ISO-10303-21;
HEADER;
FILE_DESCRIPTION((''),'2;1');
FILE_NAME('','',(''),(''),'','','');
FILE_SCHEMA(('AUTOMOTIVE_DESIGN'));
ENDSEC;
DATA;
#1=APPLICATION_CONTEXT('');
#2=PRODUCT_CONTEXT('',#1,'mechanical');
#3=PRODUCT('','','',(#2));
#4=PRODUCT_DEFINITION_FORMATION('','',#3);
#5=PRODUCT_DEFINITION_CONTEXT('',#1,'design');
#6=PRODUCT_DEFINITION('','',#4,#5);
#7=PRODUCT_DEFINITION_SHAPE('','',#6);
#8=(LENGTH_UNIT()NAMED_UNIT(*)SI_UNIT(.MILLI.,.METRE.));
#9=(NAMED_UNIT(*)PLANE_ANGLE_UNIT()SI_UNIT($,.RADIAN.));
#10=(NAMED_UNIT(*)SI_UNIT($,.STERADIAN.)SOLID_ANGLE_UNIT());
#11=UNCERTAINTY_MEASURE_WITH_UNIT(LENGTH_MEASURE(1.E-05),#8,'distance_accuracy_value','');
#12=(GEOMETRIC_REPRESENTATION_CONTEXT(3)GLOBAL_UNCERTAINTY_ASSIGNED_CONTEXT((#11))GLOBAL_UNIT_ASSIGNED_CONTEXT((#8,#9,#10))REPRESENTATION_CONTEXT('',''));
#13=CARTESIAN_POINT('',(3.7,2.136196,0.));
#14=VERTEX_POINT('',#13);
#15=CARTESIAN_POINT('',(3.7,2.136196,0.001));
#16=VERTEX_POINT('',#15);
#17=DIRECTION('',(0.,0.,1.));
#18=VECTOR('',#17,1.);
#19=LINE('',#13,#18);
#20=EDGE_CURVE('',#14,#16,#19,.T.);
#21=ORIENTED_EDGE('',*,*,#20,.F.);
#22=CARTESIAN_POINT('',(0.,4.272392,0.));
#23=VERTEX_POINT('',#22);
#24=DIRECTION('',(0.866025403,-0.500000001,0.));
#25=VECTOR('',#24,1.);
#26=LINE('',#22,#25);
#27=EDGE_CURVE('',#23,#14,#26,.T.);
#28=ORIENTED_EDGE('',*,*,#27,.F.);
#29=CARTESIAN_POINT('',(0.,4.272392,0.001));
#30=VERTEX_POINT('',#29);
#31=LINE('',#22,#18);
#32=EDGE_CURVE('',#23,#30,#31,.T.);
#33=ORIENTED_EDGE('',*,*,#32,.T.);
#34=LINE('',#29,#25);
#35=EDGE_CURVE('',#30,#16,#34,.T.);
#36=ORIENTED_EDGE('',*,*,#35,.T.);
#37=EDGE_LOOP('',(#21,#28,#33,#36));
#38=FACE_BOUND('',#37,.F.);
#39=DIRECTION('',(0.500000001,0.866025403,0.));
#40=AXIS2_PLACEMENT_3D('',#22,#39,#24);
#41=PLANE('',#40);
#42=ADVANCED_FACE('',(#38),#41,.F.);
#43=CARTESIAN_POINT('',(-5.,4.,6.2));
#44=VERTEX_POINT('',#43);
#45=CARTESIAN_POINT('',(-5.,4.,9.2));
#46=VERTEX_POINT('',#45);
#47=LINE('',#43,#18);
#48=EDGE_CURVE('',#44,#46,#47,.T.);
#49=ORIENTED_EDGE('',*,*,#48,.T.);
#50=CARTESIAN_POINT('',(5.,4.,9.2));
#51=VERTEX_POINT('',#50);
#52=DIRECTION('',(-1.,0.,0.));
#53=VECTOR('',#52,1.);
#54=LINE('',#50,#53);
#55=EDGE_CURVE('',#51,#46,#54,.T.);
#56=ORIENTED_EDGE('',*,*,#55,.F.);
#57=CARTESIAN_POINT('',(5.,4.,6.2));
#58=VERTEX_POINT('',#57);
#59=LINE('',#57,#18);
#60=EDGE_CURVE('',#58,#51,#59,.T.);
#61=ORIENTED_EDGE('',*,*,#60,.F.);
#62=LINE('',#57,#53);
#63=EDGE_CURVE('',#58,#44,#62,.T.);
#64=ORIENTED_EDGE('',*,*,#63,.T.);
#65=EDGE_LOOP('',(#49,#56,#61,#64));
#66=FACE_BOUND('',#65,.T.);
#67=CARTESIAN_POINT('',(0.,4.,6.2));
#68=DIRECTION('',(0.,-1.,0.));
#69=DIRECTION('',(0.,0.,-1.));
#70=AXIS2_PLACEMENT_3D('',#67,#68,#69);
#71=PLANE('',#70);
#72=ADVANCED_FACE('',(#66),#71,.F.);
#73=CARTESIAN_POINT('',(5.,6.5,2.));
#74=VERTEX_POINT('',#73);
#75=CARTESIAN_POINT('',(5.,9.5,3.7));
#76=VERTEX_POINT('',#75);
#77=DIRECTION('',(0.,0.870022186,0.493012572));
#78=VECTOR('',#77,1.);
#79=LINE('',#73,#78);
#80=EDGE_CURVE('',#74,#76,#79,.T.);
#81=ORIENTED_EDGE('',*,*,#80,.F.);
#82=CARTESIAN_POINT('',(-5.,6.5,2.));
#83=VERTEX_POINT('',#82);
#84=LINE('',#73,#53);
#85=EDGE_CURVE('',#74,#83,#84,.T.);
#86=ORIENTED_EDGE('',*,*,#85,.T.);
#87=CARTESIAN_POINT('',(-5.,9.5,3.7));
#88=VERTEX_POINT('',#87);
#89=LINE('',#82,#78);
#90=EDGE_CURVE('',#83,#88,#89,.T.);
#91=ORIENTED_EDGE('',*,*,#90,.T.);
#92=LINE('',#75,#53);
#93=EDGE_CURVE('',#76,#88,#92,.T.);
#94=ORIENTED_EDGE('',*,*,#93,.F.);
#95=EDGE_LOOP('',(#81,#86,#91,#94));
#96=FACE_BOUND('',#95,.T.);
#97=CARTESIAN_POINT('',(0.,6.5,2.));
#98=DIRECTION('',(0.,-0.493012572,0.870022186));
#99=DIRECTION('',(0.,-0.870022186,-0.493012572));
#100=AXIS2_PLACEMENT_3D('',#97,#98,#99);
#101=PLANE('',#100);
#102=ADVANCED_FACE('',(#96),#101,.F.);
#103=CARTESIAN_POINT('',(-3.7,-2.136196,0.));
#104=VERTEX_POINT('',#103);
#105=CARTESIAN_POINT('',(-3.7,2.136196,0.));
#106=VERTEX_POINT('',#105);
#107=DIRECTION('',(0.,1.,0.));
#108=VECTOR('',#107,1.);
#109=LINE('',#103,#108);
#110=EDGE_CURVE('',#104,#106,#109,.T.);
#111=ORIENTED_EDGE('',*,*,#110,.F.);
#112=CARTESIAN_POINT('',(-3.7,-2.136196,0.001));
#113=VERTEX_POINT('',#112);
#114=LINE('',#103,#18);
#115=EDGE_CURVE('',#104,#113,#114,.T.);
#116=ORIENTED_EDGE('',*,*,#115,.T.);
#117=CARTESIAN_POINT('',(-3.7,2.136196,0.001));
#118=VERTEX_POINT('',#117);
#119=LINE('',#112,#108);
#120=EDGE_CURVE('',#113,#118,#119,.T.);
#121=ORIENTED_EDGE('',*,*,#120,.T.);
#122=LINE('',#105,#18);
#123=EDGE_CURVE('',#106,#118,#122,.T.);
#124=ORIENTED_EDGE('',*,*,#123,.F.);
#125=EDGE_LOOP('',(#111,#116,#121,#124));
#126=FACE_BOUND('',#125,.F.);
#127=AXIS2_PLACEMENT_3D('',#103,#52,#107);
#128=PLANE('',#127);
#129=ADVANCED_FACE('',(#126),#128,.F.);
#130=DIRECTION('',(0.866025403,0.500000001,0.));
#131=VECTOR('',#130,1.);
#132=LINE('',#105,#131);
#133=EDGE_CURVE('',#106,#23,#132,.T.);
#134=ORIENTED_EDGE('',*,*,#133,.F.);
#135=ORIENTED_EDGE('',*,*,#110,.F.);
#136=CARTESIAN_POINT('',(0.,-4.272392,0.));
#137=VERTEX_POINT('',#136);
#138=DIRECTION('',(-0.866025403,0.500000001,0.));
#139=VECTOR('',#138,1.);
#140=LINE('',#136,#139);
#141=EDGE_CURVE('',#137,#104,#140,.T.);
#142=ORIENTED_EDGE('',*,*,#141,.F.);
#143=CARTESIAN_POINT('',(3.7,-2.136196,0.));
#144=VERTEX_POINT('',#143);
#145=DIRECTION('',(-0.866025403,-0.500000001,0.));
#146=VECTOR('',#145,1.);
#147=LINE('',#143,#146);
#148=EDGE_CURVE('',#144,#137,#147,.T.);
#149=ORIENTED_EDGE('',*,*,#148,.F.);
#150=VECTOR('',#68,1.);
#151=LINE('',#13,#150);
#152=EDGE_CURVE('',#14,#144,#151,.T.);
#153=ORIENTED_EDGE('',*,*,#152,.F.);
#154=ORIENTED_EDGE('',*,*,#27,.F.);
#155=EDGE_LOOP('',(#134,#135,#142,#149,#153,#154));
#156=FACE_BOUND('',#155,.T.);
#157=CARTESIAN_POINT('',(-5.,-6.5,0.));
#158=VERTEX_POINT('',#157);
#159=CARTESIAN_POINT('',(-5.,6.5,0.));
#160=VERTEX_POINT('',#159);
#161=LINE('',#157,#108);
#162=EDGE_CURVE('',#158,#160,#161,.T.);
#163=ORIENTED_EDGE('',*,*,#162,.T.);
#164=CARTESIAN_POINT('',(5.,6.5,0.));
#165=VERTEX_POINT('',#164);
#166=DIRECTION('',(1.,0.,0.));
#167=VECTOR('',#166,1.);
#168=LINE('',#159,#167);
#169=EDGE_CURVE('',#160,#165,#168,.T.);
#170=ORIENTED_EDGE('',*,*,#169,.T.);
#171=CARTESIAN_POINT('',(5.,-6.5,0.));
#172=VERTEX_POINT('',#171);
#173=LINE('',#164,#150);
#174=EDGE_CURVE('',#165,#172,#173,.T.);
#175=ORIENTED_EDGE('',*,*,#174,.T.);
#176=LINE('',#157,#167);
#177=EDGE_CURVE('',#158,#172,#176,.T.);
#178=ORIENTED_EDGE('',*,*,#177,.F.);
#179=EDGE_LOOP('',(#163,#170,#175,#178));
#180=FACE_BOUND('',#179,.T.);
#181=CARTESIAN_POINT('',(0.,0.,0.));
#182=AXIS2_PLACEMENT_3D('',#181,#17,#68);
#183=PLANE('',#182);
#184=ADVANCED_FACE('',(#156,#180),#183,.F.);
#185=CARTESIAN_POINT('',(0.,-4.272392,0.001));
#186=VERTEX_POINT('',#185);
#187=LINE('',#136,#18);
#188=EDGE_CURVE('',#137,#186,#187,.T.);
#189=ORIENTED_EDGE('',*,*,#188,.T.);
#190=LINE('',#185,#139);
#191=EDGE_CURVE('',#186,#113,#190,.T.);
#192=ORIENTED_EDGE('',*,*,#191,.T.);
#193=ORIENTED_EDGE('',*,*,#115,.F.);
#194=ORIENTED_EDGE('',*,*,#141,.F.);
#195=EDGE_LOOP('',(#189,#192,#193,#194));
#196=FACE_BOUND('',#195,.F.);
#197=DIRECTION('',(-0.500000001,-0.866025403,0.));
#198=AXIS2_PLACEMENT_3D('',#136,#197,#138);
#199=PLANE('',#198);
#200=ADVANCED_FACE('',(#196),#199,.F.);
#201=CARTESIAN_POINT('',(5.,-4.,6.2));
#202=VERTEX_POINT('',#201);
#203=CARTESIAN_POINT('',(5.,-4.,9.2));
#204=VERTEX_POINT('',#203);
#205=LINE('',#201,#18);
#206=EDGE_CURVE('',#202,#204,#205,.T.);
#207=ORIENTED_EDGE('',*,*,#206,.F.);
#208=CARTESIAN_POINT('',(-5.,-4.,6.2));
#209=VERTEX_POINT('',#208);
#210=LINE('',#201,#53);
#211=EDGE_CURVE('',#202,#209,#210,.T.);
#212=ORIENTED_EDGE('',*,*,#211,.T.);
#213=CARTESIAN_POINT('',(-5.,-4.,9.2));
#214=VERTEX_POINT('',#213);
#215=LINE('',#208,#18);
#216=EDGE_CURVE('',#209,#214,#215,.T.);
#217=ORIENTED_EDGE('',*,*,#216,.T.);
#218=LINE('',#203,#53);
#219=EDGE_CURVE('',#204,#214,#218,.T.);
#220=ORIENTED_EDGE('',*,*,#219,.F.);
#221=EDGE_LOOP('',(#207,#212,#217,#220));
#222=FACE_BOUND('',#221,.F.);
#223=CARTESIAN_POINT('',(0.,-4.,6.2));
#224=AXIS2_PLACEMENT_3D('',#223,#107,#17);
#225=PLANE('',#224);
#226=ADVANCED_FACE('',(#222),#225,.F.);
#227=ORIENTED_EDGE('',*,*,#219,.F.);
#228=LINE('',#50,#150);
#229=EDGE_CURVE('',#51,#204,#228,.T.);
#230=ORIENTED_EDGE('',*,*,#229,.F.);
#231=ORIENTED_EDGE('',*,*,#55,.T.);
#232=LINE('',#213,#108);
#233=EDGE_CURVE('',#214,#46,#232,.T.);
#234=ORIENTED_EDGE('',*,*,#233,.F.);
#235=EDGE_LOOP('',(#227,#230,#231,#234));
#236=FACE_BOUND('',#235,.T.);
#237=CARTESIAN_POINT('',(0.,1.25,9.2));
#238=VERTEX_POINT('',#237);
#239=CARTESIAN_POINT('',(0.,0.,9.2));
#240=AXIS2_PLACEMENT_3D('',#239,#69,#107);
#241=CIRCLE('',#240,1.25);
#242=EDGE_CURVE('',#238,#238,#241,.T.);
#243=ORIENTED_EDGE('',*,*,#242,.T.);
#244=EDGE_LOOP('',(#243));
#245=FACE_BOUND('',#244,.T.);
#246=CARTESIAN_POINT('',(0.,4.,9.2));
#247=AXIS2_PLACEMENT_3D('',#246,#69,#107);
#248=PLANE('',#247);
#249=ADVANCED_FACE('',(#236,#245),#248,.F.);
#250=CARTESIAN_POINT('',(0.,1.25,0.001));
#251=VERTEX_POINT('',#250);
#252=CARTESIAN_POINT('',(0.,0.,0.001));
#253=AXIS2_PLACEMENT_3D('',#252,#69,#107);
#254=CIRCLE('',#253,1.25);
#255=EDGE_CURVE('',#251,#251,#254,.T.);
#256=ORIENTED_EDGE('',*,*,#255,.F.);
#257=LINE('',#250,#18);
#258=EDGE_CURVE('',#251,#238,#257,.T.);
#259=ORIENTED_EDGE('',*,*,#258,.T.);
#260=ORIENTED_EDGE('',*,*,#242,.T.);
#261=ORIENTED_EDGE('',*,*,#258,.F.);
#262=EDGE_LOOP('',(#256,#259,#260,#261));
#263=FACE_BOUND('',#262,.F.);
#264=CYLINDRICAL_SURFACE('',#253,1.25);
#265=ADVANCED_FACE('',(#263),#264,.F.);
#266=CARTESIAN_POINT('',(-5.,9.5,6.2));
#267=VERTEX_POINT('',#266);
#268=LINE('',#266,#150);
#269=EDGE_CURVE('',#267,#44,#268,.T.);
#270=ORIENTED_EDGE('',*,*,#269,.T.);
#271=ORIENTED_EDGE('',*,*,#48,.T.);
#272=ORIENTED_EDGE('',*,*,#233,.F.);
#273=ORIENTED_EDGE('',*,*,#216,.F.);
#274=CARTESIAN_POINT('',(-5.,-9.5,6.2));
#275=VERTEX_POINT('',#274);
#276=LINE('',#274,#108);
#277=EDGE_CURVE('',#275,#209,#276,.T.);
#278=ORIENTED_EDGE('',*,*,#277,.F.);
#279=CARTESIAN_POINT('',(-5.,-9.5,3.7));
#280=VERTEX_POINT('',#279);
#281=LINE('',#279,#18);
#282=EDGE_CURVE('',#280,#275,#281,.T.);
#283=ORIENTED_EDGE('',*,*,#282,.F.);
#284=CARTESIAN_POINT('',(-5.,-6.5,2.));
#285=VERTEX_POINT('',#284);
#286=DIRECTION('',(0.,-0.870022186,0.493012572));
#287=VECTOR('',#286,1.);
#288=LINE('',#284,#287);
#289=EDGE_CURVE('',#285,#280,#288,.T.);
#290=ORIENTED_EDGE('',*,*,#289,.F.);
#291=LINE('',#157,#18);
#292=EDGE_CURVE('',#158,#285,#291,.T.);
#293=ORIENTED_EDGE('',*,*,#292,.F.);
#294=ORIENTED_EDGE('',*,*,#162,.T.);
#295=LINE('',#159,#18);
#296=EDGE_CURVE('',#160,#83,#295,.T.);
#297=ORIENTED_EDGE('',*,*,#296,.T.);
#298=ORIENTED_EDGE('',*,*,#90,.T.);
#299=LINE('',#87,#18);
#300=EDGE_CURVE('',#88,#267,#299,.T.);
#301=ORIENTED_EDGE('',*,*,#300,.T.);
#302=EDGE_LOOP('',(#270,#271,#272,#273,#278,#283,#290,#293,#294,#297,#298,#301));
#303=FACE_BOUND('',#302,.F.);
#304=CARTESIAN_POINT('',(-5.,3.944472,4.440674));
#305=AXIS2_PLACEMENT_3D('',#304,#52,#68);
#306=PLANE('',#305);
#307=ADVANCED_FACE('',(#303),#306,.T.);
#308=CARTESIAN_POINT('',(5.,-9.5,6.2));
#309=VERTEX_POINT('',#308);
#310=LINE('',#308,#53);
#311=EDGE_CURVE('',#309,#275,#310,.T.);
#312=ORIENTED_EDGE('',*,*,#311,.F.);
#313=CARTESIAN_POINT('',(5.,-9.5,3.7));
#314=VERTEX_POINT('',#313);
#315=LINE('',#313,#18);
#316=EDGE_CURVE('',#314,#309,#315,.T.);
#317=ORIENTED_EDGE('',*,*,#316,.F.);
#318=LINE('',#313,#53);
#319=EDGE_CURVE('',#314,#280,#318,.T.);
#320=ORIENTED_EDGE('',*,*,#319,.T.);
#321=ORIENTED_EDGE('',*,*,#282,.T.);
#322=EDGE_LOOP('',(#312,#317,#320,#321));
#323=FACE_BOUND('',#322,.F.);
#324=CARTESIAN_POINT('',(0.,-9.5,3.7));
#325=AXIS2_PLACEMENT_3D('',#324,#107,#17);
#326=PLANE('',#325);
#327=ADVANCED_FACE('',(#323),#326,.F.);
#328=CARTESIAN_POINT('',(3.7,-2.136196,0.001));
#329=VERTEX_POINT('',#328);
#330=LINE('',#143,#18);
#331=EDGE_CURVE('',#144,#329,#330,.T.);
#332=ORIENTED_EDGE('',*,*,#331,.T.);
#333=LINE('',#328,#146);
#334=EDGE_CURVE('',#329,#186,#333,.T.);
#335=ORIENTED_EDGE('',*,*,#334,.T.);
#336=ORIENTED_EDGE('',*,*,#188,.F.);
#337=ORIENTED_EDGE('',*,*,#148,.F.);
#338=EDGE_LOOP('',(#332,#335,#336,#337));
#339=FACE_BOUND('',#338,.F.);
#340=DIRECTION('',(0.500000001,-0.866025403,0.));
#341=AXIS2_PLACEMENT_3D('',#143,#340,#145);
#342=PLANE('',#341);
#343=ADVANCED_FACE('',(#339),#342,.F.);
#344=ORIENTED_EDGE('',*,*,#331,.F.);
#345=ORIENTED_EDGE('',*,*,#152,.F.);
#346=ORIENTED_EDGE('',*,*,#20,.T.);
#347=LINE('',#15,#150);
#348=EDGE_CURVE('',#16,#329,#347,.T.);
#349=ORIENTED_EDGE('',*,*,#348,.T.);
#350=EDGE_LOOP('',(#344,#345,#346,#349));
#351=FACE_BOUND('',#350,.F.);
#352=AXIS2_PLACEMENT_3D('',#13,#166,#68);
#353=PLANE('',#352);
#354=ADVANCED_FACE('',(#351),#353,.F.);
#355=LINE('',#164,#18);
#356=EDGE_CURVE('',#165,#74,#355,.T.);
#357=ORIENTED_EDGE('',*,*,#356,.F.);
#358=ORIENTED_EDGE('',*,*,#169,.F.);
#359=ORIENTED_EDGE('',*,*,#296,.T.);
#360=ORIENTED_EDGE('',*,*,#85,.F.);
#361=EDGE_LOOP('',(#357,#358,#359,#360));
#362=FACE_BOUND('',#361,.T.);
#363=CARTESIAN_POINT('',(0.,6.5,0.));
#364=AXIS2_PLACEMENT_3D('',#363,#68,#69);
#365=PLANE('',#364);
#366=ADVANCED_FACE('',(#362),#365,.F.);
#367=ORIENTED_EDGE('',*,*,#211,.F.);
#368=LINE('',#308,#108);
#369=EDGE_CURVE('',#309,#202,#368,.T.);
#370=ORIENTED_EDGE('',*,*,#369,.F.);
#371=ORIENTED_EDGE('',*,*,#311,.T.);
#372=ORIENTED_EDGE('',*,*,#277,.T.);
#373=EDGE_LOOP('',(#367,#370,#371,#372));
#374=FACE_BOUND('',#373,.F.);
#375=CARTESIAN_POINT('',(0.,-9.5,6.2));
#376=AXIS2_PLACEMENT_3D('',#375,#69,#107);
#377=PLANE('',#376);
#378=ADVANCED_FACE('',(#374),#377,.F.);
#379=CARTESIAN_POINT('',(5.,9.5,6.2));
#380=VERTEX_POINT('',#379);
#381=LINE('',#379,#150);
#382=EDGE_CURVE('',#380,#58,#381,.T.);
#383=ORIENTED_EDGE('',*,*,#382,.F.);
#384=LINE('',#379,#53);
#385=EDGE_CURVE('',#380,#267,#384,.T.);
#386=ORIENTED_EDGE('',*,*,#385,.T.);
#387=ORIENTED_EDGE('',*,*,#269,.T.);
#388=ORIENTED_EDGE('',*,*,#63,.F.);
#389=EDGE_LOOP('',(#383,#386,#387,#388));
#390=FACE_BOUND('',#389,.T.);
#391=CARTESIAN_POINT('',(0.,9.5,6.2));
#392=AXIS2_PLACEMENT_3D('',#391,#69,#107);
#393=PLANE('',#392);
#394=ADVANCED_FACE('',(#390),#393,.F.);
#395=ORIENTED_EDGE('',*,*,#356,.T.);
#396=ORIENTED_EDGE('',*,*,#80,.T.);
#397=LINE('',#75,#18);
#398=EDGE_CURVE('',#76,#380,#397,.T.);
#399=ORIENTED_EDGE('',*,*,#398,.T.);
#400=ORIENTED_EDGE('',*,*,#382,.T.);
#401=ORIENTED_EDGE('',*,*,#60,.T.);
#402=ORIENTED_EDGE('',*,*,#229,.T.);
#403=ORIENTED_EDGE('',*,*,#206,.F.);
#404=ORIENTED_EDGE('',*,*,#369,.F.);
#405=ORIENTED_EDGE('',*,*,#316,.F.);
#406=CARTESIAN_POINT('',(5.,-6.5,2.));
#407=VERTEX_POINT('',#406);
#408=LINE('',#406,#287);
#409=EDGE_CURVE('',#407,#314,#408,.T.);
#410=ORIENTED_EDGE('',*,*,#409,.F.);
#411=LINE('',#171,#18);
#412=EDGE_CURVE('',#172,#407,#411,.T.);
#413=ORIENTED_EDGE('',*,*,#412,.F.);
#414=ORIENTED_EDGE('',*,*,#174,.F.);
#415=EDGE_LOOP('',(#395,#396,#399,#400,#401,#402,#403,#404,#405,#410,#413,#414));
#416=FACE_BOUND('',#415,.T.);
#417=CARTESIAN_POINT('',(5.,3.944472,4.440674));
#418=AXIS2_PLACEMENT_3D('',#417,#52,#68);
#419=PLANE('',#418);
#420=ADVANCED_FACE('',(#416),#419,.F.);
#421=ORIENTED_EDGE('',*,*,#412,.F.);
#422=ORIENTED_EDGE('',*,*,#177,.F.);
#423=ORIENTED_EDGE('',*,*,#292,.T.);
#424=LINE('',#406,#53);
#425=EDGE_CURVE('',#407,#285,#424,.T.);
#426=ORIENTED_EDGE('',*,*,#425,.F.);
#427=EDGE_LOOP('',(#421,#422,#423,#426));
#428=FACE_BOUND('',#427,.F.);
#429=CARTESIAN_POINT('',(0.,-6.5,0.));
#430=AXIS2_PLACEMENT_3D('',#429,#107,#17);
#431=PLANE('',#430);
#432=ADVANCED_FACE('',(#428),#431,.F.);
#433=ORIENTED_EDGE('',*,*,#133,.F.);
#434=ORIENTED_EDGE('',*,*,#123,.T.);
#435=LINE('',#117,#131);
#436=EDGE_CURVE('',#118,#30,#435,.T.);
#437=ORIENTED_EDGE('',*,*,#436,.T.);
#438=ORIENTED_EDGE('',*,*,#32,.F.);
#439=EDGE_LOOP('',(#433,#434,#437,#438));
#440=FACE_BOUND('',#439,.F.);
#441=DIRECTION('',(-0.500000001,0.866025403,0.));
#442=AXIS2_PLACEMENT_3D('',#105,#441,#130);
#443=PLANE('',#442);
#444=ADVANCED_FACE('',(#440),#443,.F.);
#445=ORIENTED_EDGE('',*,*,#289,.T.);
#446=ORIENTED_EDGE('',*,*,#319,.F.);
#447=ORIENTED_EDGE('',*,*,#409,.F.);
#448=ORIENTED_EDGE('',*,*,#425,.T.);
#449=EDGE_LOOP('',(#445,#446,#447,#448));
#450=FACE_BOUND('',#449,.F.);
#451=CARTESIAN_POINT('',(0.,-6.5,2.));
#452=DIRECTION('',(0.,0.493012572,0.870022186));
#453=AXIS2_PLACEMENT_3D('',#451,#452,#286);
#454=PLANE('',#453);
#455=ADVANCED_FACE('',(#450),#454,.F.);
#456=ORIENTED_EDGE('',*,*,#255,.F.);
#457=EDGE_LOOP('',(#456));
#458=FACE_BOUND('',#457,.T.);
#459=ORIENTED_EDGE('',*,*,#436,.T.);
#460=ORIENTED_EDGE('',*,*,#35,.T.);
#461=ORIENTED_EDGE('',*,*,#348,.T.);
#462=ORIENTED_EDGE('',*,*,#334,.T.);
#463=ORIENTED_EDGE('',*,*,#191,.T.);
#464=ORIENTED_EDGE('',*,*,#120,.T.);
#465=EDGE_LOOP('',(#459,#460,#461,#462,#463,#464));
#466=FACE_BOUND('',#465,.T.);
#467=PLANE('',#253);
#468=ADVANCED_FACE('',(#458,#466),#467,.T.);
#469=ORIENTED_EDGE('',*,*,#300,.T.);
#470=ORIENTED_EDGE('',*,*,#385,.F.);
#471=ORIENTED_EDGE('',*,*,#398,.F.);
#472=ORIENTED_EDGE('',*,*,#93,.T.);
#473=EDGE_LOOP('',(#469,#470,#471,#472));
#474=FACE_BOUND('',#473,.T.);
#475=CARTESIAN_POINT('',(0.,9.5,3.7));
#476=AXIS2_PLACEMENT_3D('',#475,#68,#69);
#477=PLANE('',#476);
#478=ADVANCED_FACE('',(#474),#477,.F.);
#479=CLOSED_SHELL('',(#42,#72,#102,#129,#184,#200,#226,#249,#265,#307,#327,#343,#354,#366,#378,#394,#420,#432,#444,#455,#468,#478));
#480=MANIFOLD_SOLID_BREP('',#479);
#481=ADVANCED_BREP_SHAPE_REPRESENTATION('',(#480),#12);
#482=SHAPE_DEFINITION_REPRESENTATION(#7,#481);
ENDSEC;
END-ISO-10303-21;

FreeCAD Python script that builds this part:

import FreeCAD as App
import Part
import Sketcher

V = App.Vector
Q = App.Units.Quantity

doc = App.newDocument("Part")
body = doc.addObject("PartDesign::Body", "Body")

# Sketch on YZ plane
sketch1 = body.newObject("Sketcher::SketchObject", "Sketch")
sketch1.AttachmentSupport = (doc.getObject("YZ_Plane"), [""])
sketch1.MapMode = "FlatFace"
sketch1.addGeometry([
    Part.LineSegment(V(-6.5, 2, 0), V(-6.5, 0, 0)),  # 0
    Part.LineSegment(V(-6.5, 0, 0), V(0, 0, 0)),  # 1
    Part.LineSegment(V(0, 0, 0), V(0, 9.2, 0)),  # 2
    Part.LineSegment(V(0, 9.2, 0), V(-4, 9.2, 0)),  # 3
    Part.LineSegment(V(-4, 9.2, 0), V(-4, 6.2, 0)),  # 4
    Part.LineSegment(V(-4, 6.2, 0), V(-9.5, 6.2, 0)),  # 5
    Part.LineSegment(V(-9.5, 6.2, 0), V(-9.5, 3.7, 0)),  # 6
    Part.LineSegment(V(-9.5, 3.7, 0), V(-6.5, 2, 0)),  # 7
], False)
sketch1.addConstraint([
    Sketcher.Constraint("Coincident", 0, 2, 1, 1),
    Sketcher.Constraint("Coincident", 1, 2, 2, 1),
    Sketcher.Constraint("Coincident", 2, 2, 3, 1),
    Sketcher.Constraint("Coincident", 3, 2, 4, 1),
    Sketcher.Constraint("Coincident", 4, 2, 5, 1),
    Sketcher.Constraint("Coincident", 5, 2, 6, 1),
    Sketcher.Constraint("Coincident", 6, 2, 7, 1),
    Sketcher.Constraint("Coincident", 7, 2, 0, 1),
    Sketcher.Constraint("Vertical", 0),
    Sketcher.Constraint("Horizontal", 1),
    Sketcher.Constraint("Vertical", 2),
    Sketcher.Constraint("Horizontal", 3),
    Sketcher.Constraint("Vertical", 4),
    Sketcher.Constraint("Horizontal", 5),
    Sketcher.Constraint("Vertical", 6),
    Sketcher.Constraint("Coincident", 1, 2, -1, 1),
    Sketcher.Constraint("DistanceX", 3, 2, 3, 1, 4.0),
    Sketcher.Constraint("DistanceY", 0, 2, 0, 1, 2.0),
    Sketcher.Constraint("DistanceY", 4, 2, 4, 1, 3.0),
    Sketcher.Constraint("DistanceX", 1, 1, 1, 2, 6.5),
    Sketcher.Constraint("DistanceX", 5, 2, 5, 1, 5.5),
    Sketcher.Constraint("DistanceY", 2, 1, 2, 2, 9.2),
    Sketcher.Constraint("DistanceY", 6, 2, 6, 1, 2.5),
])
pad1 = body.newObject("PartDesign::Pad", "Pad")
pad1.Profile = sketch1
pad1.Length = 10
pad1.Midplane = True
doc.recompute()

mirrored = body.newObject("PartDesign::Mirrored", "Mirrored")
mirrored.Originals = [pad1]
mirrored.MirrorPlane = (doc.getObject("XZ_Plane"), [""])
body.Tip = mirrored

# Sketch on XY plane
sketch2 = body.newObject("Sketcher::SketchObject", "Sketch001")
sketch2.AttachmentSupport = (doc.getObject("XY_Plane"), [""])
sketch2.MapMode = "FlatFace"
sketch2.addGeometry([
    Part.LineSegment(V(3.7, -2.1, 0), V(0, -4.3, 0)),  # 0
    Part.LineSegment(V(0, -4.3, 0), V(-3.7, -2.1, 0)),  # 1
    Part.LineSegment(V(-3.7, -2.1, 0), V(-3.7, 2.1, 0)),  # 2
    Part.LineSegment(V(-3.7, 2.1, 0), V(0, 4.3, 0)),  # 3
    Part.LineSegment(V(0, 4.3, 0), V(3.7, 2.1, 0)),  # 4
    Part.LineSegment(V(3.7, 2.1, 0), V(3.7, -2.1, 0)),  # 5
], False)
sketch2.addConstraint([
    Sketcher.Constraint("Coincident", 0, 2, 1, 1),
    Sketcher.Constraint("Coincident", 1, 2, 2, 1),
    Sketcher.Constraint("Coincident", 2, 2, 3, 1),
    Sketcher.Constraint("Coincident", 3, 2, 4, 1),
    Sketcher.Constraint("Coincident", 4, 2, 5, 1),
    Sketcher.Constraint("Coincident", 5, 2, 0, 1),
    Sketcher.Constraint("Vertical", 2),
    Sketcher.Constraint("Vertical", 5),
    Sketcher.Constraint("Symmetric", 0, 2, 3, 2, -1, 1),
    Sketcher.Constraint("Symmetric", 1, 2, 4, 2, -1, 1),
    Sketcher.Constraint("PointOnObject", 0, 2, -2),
    Sketcher.Constraint("Parallel", 0, 3),
    Sketcher.Constraint("Horizontal", 2, 2, 4, 2),
    Sketcher.Constraint("Angle", 0, Q("-150 deg")),
    Sketcher.Constraint("DistanceX", 1, 2, -1, 1, 3.7),
    Sketcher.Constraint("DistanceY", 2, 1, 2, 2, 4.272392),
])
pocket1 = body.newObject("PartDesign::Pocket", "Pocket")
pocket1.Profile = sketch2
pocket1.Length = 0.001
pocket1.Reversed = True

# Sketch on XY plane
sketch3 = body.newObject("Sketcher::SketchObject", "Sketch002")
sketch3.AttachmentSupport = (doc.getObject("XY_Plane"), [""])
sketch3.MapMode = "FlatFace"
sketch3.AttachmentOffset = App.Placement(V(0, 0, 0.001), App.Rotation())
sketch3.addGeometry(Part.Circle(V(0, 0, 0), V(0, 0, 1), 1.2), False)
sketch3.addConstraint([
    Sketcher.Constraint("Coincident", 0, 3, -1, 1),
    Sketcher.Constraint("Diameter", 0, 2.5),
])
pocket2 = body.newObject("PartDesign::Pocket", "Pocket001")
pocket2.Profile = sketch3
pocket2.Type = "ThroughAll"
pocket2.Reversed = True

doc.recompute()
